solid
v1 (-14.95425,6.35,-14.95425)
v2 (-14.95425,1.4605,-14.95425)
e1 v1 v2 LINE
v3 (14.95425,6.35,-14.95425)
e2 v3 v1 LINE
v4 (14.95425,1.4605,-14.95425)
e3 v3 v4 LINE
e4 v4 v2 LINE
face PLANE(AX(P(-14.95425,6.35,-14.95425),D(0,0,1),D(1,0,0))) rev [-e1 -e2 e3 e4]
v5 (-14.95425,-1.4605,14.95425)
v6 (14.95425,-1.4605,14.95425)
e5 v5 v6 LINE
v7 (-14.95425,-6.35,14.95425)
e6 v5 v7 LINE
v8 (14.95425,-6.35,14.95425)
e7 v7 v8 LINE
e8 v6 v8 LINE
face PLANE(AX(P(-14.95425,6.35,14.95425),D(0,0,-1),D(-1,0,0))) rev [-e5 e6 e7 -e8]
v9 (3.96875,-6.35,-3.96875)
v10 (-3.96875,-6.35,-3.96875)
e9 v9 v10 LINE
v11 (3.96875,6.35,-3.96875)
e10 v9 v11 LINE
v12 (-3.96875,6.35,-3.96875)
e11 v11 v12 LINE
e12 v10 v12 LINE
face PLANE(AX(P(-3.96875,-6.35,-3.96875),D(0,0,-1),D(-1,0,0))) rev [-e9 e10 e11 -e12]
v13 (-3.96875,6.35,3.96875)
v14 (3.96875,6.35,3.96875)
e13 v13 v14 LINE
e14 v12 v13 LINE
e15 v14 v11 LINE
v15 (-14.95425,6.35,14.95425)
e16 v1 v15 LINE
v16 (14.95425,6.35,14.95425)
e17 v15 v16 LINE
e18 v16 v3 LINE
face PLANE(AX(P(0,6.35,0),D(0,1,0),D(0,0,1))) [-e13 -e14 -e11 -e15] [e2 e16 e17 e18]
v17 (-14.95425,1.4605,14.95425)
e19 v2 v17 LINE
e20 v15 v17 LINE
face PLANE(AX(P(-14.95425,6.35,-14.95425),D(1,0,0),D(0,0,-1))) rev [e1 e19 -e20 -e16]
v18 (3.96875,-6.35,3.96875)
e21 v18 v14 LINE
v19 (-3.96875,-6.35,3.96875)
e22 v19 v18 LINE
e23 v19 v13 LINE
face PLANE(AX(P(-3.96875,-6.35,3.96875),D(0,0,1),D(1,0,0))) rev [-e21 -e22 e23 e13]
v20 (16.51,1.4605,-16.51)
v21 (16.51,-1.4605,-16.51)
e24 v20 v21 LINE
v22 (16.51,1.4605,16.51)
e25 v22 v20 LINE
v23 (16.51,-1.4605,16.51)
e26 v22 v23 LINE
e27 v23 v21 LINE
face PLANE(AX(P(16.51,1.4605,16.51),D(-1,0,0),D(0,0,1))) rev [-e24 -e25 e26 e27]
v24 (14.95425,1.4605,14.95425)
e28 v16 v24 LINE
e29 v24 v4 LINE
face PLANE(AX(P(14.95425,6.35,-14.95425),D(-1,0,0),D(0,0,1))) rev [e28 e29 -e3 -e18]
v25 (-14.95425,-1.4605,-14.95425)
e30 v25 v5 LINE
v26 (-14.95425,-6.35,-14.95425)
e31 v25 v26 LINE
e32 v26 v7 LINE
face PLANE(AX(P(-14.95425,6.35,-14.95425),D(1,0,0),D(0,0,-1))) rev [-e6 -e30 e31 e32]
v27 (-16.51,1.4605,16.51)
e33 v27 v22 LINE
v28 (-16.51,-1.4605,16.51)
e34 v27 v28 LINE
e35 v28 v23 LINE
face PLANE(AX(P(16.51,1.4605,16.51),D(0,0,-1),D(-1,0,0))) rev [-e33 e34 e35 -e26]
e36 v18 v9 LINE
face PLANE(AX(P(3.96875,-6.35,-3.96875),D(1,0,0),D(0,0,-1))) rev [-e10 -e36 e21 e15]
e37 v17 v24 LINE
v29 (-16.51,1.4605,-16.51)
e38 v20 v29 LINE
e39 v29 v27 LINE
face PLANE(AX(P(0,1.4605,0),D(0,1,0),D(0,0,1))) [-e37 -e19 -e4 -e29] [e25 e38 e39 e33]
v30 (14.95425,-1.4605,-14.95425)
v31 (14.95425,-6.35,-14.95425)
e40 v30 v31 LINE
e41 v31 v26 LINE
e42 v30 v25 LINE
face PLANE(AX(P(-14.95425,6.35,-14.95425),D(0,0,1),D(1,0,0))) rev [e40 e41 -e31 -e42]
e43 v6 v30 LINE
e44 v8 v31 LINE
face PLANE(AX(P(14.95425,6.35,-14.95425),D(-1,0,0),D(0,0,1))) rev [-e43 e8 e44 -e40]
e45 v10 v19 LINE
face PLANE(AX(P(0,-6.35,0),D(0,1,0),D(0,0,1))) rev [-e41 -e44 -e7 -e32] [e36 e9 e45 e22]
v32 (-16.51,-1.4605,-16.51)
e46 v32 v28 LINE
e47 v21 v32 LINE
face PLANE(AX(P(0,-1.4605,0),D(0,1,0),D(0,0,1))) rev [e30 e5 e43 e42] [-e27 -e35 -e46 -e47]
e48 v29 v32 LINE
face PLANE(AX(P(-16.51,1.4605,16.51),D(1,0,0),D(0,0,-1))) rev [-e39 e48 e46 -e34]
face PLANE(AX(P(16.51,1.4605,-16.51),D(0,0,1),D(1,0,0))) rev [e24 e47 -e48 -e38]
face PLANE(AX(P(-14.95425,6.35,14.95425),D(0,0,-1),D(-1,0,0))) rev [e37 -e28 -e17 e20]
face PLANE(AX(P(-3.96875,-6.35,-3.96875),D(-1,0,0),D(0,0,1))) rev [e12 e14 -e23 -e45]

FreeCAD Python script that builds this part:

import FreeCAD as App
import Part
import Sketcher

V = App.Vector
Q = App.Units.Quantity


def add_polygon(sketch, points):
    """Adds a closed chain of lines whose ends are joined by coincident constraints."""
    first, n = sketch.GeometryCount, len(points)
    for a, b in zip(points, points[1:] + points[:1]):
        sketch.addGeometry(Part.LineSegment(App.Vector(*a, 0), App.Vector(*b, 0)), False)
    for i in range(n):
        sketch.addConstraint(Sketcher.Constraint("Coincident", first + i, 2, first + (i + 1) % n, 1))

doc = App.newDocument("Part")
body = doc.addObject("PartDesign::Body", "Body")

# Sketch on XZ plane
sketch1 = body.newObject("Sketcher::SketchObject", "Sketch")
sketch1.AttachmentSupport = (doc.getObject("XZ_Plane"), [""])
sketch1.MapMode = "FlatFace"
add_polygon(sketch1, [(-15, -15), (-15, 15), (15, 15), (15, -15)])  # lines 0-3
sketch1.addConstraint([
    Sketcher.Constraint("Vertical", 0),
    Sketcher.Constraint("Horizontal", 1),
    Sketcher.Constraint("Vertical", 2),
    Sketcher.Constraint("Horizontal", 3),
    Sketcher.Constraint("Symmetric", 0, 2, 2, 2, -1, 1),
    Sketcher.Constraint("Equal", 3, 0),
    Sketcher.Constraint("DistanceX", 1, 1, 1, 2, Q("1.1775 in")),
])
pad1 = body.newObject("PartDesign::Pad", "Pad")
pad1.Profile = sketch1
pad1.Length = Q("0.5 in")
pad1.Midplane = True

# Sketch on XZ plane
sketch2 = body.newObject("Sketcher::SketchObject", "Sketch001")
sketch2.AttachmentSupport = (doc.getObject("XZ_Plane"), [""])
sketch2.MapMode = "FlatFace"
add_polygon(sketch2, [(-17, -17), (-17, 17), (17, 17), (17, -17)])  # lines 0-3
sketch2.addConstraint([
    Sketcher.Constraint("Vertical", 0),
    Sketcher.Constraint("Horizontal", 1),
    Sketcher.Constraint("Vertical", 2),
    Sketcher.Constraint("Horizontal", 3),
    Sketcher.Constraint("Symmetric", 0, 2, 2, 2, -1, 1),
    Sketcher.Constraint("Equal", 3, 0),
    Sketcher.Constraint("DistanceX", 1, 1, 1, 2, Q("1.3 in")),
])
pad2 = body.newObject("PartDesign::Pad", "Pad001")
pad2.Profile = sketch2
pad2.Length = Q("0.115 in")
pad2.Midplane = True

# Sketch on XZ plane
sketch3 = body.newObject("Sketcher::SketchObject", "Sketch002")
sketch3.AttachmentSupport = (doc.getObject("XZ_Plane"), [""])
sketch3.MapMode = "FlatFace"
sketch3.AttachmentOffset = App.Placement(V(0, 0, -0.25 * 25.4), App.Rotation())
add_polygon(sketch3, [(-4, -4), (-4, 4), (4, 4), (4, -4)])  # lines 0-3
sketch3.addConstraint([
    Sketcher.Constraint("Vertical", 0),
    Sketcher.Constraint("Horizontal", 1),
    Sketcher.Constraint("Vertical", 2),
    Sketcher.Constraint("Horizontal", 3),
    Sketcher.Constraint("Symmetric", 0, 2, 2, 2, -1, 1),
    Sketcher.Constraint("Equal", 3, 0),
    Sketcher.Constraint("DistanceX", 1, 1, 1, 2, Q("0.3125 in")),
])
pocket1 = body.newObject("PartDesign::Pocket", "Pocket")
pocket1.Profile = sketch3
pocket1.Type = "ThroughAll"
pocket1.Reversed = True

doc.recompute()
